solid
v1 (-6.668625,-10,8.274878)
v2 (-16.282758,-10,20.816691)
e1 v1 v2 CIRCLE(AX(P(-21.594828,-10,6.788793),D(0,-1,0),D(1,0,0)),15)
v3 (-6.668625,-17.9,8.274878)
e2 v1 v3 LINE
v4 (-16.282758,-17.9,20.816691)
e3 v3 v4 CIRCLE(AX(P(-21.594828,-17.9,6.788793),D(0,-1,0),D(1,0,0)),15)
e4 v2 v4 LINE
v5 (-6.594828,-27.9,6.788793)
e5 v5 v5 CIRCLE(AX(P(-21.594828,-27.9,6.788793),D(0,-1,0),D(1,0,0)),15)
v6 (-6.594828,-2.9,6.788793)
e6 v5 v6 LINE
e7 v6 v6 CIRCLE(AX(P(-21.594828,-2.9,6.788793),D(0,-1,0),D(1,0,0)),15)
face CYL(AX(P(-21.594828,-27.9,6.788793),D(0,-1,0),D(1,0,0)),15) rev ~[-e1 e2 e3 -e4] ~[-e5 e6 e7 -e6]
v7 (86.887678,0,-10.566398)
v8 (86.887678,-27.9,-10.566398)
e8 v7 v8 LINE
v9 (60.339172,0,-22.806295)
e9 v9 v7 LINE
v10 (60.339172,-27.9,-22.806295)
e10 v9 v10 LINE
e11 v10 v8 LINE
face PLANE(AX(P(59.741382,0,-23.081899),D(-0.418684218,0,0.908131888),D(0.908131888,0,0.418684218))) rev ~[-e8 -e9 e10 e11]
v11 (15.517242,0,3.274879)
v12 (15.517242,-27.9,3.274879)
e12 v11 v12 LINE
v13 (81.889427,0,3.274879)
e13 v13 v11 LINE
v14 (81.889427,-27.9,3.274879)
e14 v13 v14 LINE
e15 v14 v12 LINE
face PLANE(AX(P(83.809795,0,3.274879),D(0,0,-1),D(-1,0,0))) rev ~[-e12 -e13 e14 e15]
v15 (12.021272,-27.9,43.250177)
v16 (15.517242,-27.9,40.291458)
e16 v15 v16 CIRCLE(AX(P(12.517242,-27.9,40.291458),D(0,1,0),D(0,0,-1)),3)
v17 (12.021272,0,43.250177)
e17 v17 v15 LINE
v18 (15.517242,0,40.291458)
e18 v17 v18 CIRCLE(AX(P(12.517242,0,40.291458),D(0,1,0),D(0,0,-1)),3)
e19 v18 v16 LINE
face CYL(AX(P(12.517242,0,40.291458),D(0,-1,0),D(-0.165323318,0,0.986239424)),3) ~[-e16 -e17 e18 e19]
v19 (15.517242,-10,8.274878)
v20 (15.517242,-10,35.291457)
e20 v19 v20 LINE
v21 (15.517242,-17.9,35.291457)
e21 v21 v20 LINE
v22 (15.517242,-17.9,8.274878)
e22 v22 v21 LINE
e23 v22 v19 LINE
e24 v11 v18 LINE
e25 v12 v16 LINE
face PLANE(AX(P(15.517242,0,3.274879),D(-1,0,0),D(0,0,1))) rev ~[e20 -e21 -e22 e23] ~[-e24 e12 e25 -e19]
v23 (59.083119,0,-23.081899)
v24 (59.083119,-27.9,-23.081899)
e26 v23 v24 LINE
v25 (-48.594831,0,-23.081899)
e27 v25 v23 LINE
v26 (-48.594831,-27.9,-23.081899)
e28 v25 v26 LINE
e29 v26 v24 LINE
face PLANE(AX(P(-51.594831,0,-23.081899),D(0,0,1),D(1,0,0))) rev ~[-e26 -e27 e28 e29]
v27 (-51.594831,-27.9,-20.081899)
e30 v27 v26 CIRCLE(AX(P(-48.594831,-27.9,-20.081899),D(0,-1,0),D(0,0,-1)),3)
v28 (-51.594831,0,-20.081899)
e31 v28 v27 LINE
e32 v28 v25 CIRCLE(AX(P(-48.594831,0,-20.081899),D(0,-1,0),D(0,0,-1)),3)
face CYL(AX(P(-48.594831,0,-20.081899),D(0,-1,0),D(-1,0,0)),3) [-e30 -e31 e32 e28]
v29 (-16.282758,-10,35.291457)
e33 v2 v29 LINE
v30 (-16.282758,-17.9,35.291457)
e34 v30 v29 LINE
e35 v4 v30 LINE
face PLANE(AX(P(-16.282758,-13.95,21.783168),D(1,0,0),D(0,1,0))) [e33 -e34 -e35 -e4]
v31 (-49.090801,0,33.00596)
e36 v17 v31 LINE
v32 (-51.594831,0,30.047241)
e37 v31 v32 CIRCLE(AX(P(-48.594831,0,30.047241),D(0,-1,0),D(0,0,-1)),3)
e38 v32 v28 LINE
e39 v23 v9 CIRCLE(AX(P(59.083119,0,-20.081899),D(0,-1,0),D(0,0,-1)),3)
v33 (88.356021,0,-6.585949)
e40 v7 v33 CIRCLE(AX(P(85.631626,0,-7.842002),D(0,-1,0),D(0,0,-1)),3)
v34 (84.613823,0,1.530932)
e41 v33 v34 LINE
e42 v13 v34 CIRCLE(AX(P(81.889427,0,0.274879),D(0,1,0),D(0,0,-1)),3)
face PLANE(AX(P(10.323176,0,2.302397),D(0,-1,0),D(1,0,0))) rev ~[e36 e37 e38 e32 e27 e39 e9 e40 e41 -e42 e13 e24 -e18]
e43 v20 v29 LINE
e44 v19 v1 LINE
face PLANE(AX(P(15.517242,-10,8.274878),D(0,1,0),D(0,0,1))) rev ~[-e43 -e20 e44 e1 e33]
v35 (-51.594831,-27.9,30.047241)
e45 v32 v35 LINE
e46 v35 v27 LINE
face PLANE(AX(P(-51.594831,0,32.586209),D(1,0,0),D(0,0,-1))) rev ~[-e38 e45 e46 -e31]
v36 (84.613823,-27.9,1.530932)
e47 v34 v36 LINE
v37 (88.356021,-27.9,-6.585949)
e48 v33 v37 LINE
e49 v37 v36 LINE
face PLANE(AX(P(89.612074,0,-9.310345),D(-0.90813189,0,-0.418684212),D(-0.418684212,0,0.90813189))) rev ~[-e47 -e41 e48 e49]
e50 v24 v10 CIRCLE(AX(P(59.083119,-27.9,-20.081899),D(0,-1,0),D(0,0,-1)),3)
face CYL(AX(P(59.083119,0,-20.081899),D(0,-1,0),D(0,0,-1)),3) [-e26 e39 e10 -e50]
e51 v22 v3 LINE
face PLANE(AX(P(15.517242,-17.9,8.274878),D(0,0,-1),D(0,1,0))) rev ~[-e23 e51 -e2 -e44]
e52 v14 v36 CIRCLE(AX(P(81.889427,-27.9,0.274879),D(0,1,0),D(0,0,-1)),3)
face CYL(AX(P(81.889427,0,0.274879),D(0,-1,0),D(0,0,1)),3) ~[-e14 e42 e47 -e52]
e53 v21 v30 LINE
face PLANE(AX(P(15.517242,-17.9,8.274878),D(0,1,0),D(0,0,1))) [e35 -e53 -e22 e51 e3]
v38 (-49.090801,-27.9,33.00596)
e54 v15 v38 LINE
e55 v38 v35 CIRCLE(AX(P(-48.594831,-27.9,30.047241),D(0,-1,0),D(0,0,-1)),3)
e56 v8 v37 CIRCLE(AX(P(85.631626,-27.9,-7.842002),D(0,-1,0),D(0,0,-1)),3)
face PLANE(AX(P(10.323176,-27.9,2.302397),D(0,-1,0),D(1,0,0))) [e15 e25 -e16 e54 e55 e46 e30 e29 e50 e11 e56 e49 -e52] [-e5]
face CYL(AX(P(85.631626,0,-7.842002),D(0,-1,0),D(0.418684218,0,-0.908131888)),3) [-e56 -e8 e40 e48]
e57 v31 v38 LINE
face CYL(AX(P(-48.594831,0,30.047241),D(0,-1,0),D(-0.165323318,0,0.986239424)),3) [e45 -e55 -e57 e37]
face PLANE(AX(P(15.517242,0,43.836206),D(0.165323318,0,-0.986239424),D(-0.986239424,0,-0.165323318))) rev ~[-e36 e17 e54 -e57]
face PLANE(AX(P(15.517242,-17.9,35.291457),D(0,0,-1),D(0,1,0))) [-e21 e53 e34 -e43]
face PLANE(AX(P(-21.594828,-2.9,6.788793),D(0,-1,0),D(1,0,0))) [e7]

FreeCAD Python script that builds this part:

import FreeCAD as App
import Part
import Sketcher

V = App.Vector
Q = App.Units.Quantity


def edges_at(feature, points):
    """Names of the edges that pass closest to the given points."""
    edges = feature.Shape.Edges
    near = lambda p: min(range(len(edges)), key=lambda i: edges[i].distToShape(Part.Vertex(*p))[0])
    return sorted({f"Edge{near(p) + 1}" for p in points})

doc = App.newDocument("Part")
body = doc.addObject("PartDesign::Body", "Body")

sketch1 = doc.addObject("Sketcher::SketchObject", "Sketch")
body.addObject(sketch1)
sketch1.AttachmentSupport = (doc.XZ_Plane, [""])
sketch1.MapMode = "FlatFace"
sketch1.addGeometry(Part.LineSegment(V(16, 44, 0), V(-52, 33, 0)), False)
sketch1.addGeometry(Part.LineSegment(V(-52, 33, 0), V(-52, -23, 0)), False)
sketch1.addGeometry(Part.LineSegment(V(-52, -23, 0), V(60, -23, 0)), False)
sketch1.addGeometry(Part.LineSegment(V(60, -23, 0), V(90, -9, 0)), False)
sketch1.addGeometry(Part.LineSegment(V(90, -9, 0), V(84, 3, 0)), False)
sketch1.addGeometry(Part.LineSegment(V(84, 3, 0), V(16, 3, 0)), False)
sketch1.addGeometry(Part.LineSegment(V(16, 3, 0), V(16, 44, 0)), False)
sketch1.addConstraint(Sketcher.Constraint("Coincident", 0, 2, 1, 1))
sketch1.addConstraint(Sketcher.Constraint("Coincident", 1, 2, 2, 1))
sketch1.addConstraint(Sketcher.Constraint("Coincident", 2, 2, 3, 1))
sketch1.addConstraint(Sketcher.Constraint("Coincident", 3, 2, 4, 1))
sketch1.addConstraint(Sketcher.Constraint("Coincident", 4, 2, 5, 1))
sketch1.addConstraint(Sketcher.Constraint("Coincident", 5, 2, 6, 1))
sketch1.addConstraint(Sketcher.Constraint("Coincident", 6, 2, 0, 1))
sketch1.addConstraint(Sketcher.Constraint("Vertical", 1))
sketch1.addConstraint(Sketcher.Constraint("Horizontal", 2))
sketch1.addConstraint(Sketcher.Constraint("Horizontal", 5))
sketch1.addConstraint(Sketcher.Constraint("Vertical", 6))
sketch1.addConstraint(Sketcher.Constraint("Perpendicular", 3, 4))
sketch1.addConstraint(Sketcher.Constraint("DistanceY", 1, 2, -1, 1, Q("23.081899 mm")))
sketch1.addConstraint(Sketcher.Constraint("Distance", 0, Q("68.048459 mm")))
sketch1.addConstraint(Sketcher.Constraint("Distance", 3, Q("32.89246 mm")))
sketch1.addConstraint(Sketcher.Constraint("DistanceX", 2, 1, 2, 2, Q("111.336213 mm")))
sketch1.addConstraint(Sketcher.Constraint("DistanceX", 5, 2, 5, 1, Q("68.292553 mm")))
sketch1.addConstraint(Sketcher.Constraint("DistanceY", 1, 2, 1, 1, Q("55.668108 mm")))
sketch1.addConstraint(Sketcher.Constraint("DistanceY", 6, 1, 6, 2, Q("40.561327 mm")))
sketch1.addConstraint(Sketcher.Constraint("DistanceX", 0, 2, -1, 1, Q("51.594831 mm")))
sketch1.addConstraint(Sketcher.Constraint("DistanceY", -1, 1, 4, 2, Q("3.274879 mm")))
pad1 = doc.addObject("PartDesign::Pad", "Pad")
body.addObject(pad1)
pad1.Profile = sketch1
pad1.Length = 27.9

sketch2 = doc.addObject("Sketcher::SketchObject", "Sketch001")
body.addObject(sketch2)
sketch2.AttachmentSupport = (doc.XZ_Plane, [""])
sketch2.MapMode = "FlatFace"
sketch2.AttachmentOffset = App.Placement(V(0, 0, 27.9), App.Rotation())
sketch2.addGeometry(Part.Circle(V(-22, 7, 0), V(0, 0, 1), 15), False)
sketch2.addConstraint(Sketcher.Constraint("Diameter", 0, Q("30 mm")))
sketch2.addConstraint(Sketcher.Constraint("DistanceX", 0, 3, -1, 1, Q("21.594828 mm")))
sketch2.addConstraint(Sketcher.Constraint("DistanceY", -1, 1, 0, 3, Q("6.788793 mm")))
pocket1 = doc.addObject("PartDesign::Pocket", "Pocket")
body.addObject(pocket1)
pocket1.Profile = sketch2
pocket1.Length = 25
doc.recompute()

fillet = doc.addObject("PartDesign::Fillet", "Fillet")
body.addObject(fillet)
fillet.Base = (pocket1, edges_at(pocket1, [
    (15.517, -13.95, 43.836),
    (83.81, -13.95, 3.275),
    (89.612, -13.95, -9.31),
    (59.741, -13.95, -23.082),
    (-51.595, -13.95, -23.082),
    (-51.595, -13.95, 32.586),
]))
fillet.Radius = 3

sketch3 = doc.addObject("Sketcher::SketchObject", "Sketch002")
body.addObject(sketch3)
sketch3.AttachmentSupport = (doc.YZ_Plane, [""])
sketch3.MapMode = "FlatFace"
sketch3.AttachmentOffset = App.Placement(V(0, 0, 15.517242), App.Rotation())
sketch3.addGeometry(Part.LineSegment(V(-18, 35, 0), V(-18, 8, 0)), False)
sketch3.addGeometry(Part.LineSegment(V(-18, 8, 0), V(-10, 8, 0)), False)
sketch3.addGeometry(Part.LineSegment(V(-10, 8, 0), V(-10, 35, 0)), False)
sketch3.addGeometry(Part.LineSegment(V(-10, 35, 0), V(-18, 35, 0)), False)
sketch3.addConstraint(Sketcher.Constraint("Coincident", 0, 2, 1, 1))
sketch3.addConstraint(Sketcher.Constraint("Coincident", 1, 2, 2, 1))
sketch3.addConstraint(Sketcher.Constraint("Coincident", 2, 2, 3, 1))
sketch3.addConstraint(Sketcher.Constraint("Coincident", 3, 2, 0, 1))
sketch3.addConstraint(Sketcher.Constraint("Vertical", 0))
sketch3.addConstraint(Sketcher.Constraint("Horizontal", 1))
sketch3.addConstraint(Sketcher.Constraint("Vertical", 2))
sketch3.addConstraint(Sketcher.Constraint("Horizontal", 3))
sketch3.addConstraint(Sketcher.Constraint("DistanceX", 1, 1, 1, 2, Q("7.9 mm")))
sketch3.addConstraint(Sketcher.Constraint("DistanceX", 1, 2, -1, 1, Q("10 mm")))
sketch3.addConstraint(Sketcher.Constraint("DistanceY", 0, 2, 0, 1, Q("27.016579 mm")))
sketch3.addConstraint(Sketcher.Constraint("DistanceY", -1, 1, 0, 2, Q("8.274878 mm")))
pocket2 = doc.addObject("PartDesign::Pocket", "Pocket001")
body.addObject(pocket2)
pocket2.Profile = sketch3
pocket2.Length = 31.8

doc.recompute()
